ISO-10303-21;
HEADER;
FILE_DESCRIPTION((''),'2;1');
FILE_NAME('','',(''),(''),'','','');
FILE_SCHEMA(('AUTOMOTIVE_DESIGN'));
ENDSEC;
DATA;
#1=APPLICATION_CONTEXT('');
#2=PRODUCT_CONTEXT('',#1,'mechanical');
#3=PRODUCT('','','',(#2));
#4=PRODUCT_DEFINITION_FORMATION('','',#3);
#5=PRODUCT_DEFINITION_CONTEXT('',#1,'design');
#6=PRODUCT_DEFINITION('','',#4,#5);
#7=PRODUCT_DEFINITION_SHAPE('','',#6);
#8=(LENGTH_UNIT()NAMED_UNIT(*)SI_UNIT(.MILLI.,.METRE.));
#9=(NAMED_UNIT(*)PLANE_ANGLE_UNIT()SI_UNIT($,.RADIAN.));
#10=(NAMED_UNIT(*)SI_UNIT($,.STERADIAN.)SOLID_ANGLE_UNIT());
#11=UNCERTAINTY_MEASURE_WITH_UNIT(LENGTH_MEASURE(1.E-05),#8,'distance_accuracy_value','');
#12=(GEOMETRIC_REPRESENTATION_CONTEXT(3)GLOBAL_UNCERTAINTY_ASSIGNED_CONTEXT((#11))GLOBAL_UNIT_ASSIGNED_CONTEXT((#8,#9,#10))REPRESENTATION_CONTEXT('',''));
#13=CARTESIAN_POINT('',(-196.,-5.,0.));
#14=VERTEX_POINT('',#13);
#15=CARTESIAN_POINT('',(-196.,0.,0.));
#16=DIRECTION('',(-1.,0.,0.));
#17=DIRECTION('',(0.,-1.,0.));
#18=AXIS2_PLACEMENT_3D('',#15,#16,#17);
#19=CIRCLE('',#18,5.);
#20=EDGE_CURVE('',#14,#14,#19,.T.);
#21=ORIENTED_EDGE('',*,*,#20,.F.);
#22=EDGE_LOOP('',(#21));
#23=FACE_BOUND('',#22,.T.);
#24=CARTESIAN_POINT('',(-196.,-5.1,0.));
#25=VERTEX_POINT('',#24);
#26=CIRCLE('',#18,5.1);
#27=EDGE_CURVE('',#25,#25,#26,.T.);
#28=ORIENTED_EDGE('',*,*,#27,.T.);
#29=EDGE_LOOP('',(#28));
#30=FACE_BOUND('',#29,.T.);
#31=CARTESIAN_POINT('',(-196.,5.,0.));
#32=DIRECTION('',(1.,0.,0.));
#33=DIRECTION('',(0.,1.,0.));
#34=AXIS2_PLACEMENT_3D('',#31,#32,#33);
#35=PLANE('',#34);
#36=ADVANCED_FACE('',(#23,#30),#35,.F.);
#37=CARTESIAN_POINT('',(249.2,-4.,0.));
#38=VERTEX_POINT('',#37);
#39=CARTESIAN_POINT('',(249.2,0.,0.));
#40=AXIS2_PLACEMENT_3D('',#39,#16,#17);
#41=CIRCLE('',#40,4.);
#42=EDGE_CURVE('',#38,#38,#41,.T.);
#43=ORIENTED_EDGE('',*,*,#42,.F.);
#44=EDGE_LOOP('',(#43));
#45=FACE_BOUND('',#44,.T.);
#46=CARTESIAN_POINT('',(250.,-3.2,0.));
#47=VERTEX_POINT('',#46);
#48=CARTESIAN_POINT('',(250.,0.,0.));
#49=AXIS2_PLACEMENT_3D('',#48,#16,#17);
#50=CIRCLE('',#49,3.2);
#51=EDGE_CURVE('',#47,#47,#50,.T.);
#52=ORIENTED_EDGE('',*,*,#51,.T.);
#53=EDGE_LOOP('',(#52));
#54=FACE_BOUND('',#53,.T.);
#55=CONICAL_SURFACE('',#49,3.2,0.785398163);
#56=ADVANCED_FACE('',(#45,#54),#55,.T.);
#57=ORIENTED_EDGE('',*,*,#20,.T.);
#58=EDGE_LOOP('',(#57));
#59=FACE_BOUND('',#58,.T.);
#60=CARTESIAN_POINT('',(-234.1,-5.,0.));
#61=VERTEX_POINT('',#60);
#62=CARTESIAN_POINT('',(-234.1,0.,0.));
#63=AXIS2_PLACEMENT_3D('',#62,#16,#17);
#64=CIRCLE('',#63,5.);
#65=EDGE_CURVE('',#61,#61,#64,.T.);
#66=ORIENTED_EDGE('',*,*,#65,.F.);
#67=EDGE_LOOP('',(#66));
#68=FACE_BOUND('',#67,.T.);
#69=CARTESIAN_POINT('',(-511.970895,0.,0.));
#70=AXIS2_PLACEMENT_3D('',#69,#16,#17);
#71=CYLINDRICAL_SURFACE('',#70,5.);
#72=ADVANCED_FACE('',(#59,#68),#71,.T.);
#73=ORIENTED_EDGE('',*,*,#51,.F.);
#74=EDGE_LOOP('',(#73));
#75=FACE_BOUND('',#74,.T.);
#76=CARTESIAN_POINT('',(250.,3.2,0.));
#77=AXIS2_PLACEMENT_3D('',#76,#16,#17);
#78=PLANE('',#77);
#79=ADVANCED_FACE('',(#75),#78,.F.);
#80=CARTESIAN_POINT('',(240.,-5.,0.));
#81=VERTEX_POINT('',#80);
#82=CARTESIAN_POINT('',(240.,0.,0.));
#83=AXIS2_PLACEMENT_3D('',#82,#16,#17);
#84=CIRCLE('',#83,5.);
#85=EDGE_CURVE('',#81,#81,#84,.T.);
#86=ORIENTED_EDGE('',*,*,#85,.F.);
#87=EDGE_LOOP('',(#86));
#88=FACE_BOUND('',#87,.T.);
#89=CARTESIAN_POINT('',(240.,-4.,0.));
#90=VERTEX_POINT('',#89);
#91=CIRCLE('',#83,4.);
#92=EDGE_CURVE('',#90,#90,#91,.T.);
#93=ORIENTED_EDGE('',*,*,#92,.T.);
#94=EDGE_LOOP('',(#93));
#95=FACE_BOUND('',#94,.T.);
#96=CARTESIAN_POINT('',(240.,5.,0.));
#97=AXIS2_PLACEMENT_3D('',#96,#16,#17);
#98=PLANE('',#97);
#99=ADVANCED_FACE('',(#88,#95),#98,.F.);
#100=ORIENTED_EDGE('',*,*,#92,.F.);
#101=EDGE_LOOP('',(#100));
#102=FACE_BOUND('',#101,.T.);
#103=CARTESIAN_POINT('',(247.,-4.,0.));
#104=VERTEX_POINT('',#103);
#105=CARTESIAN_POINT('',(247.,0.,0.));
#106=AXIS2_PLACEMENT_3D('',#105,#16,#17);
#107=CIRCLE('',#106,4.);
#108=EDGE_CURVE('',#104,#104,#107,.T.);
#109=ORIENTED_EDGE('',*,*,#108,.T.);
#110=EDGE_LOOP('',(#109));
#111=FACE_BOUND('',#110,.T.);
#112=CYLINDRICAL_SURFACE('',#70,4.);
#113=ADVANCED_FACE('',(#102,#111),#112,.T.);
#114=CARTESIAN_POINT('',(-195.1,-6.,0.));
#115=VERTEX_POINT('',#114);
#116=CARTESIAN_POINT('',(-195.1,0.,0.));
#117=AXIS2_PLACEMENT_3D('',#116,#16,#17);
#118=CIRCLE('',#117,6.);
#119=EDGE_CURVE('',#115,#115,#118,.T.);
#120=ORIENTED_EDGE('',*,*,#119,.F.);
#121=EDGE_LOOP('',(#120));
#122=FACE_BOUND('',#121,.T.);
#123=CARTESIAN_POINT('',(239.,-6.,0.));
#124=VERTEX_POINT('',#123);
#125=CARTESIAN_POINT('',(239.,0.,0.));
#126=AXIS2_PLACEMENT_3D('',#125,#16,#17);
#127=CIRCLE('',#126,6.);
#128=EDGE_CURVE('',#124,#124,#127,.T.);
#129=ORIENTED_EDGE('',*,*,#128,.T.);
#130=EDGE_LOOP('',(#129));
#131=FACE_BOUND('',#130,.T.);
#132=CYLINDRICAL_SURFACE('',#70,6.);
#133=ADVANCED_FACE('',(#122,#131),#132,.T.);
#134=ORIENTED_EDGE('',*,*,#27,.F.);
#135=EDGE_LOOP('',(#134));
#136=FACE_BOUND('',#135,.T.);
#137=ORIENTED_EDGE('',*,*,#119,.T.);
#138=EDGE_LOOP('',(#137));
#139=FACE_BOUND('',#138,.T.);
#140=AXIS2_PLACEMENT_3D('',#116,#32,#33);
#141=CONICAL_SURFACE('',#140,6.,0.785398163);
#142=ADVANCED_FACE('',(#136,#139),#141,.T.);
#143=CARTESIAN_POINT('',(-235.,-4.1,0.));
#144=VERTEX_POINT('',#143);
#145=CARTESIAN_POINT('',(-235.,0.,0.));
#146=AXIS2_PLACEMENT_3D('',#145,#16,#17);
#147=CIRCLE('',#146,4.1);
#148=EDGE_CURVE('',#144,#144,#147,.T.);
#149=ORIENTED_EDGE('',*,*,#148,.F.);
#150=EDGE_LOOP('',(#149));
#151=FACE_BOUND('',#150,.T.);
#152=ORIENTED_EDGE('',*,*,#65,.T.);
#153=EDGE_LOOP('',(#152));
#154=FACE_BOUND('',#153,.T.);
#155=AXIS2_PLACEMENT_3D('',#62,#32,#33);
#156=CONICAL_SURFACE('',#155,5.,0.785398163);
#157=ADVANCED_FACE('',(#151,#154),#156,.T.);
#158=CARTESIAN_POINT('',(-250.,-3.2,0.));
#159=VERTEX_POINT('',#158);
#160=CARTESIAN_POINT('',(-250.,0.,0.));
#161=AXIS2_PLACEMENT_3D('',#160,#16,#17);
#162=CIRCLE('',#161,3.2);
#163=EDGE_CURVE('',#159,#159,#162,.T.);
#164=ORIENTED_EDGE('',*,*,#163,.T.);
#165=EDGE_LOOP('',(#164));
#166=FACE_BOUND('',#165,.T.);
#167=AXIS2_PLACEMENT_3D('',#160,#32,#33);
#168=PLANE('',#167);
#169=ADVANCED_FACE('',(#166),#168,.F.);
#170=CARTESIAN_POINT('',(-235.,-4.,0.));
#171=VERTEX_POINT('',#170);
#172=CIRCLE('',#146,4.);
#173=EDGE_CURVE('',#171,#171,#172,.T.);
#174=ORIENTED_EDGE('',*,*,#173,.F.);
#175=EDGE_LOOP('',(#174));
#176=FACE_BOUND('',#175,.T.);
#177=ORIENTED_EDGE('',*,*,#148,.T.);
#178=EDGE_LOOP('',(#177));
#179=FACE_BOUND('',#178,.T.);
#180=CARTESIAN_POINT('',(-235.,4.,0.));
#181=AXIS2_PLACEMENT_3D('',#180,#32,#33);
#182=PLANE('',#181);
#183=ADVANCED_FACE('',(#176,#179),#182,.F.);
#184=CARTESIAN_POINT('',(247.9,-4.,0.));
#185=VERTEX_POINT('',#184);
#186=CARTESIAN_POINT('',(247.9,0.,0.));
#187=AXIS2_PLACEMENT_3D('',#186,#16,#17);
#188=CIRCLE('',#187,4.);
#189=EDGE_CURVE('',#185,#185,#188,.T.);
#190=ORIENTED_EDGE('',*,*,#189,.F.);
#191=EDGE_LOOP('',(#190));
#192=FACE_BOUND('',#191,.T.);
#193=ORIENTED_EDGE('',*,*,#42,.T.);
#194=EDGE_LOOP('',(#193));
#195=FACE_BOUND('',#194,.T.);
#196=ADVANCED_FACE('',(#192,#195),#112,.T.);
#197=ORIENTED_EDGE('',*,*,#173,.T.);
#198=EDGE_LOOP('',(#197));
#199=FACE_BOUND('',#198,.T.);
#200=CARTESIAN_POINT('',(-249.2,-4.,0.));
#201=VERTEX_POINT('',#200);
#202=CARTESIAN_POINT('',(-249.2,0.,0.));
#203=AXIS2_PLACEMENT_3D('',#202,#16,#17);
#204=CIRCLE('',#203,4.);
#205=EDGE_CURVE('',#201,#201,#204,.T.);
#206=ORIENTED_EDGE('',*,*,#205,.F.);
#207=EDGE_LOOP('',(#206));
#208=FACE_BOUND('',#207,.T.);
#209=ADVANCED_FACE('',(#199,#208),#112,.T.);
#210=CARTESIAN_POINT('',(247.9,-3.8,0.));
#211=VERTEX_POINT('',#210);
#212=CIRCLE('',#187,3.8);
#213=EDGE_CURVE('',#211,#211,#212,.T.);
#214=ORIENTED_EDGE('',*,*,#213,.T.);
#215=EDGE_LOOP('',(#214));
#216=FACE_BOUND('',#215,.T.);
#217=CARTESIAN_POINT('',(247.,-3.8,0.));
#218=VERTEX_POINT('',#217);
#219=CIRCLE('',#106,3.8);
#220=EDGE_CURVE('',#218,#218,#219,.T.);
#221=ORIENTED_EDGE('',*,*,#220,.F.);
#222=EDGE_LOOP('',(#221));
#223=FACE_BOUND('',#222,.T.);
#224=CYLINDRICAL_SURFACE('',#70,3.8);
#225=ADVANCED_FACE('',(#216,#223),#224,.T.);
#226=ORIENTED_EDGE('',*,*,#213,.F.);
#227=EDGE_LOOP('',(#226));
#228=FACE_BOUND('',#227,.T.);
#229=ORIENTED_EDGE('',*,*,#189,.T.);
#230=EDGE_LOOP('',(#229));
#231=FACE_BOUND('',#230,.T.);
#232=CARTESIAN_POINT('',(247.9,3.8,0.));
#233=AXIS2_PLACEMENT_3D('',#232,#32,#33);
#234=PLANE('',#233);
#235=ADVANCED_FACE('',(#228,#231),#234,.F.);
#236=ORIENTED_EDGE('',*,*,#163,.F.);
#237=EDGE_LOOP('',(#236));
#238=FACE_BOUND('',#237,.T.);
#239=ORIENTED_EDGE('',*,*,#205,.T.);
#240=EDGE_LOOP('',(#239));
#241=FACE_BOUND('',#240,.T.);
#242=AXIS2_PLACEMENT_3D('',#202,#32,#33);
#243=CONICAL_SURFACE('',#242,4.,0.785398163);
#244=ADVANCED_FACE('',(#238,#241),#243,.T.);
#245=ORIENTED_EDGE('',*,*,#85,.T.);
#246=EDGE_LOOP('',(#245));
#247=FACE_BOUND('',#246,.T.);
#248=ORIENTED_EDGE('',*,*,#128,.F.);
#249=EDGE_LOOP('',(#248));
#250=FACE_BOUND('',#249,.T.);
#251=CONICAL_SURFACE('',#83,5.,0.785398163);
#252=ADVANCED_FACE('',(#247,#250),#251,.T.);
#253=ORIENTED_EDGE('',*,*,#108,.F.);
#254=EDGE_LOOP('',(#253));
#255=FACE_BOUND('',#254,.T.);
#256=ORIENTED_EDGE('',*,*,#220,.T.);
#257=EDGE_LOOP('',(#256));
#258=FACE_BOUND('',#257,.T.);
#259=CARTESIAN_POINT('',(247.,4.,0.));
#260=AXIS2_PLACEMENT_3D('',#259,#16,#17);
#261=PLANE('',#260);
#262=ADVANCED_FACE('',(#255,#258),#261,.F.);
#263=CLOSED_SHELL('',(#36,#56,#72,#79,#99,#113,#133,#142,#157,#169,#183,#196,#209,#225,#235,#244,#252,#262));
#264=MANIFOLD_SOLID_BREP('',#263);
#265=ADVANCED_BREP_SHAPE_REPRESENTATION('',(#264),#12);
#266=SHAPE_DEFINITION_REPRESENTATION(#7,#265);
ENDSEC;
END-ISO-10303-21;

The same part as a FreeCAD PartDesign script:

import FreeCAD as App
import Part
import Sketcher
Q = App.Units.Quantity


def add_polygon(sketch, points):
    """Adds a closed chain of lines whose ends are joined by coincident constraints."""
    first, n = sketch.GeometryCount, len(points)
    for a, b in zip(points, points[1:] + points[:1]):
        sketch.addGeometry(Part.LineSegment(App.Vector(*a, 0), App.Vector(*b, 0)), False)
    for i in range(n):
        sketch.addConstraint(Sketcher.Constraint("Coincident", first + i, 2, first + (i + 1) % n, 1))

doc = App.newDocument("Part")
body = doc.addObject("PartDesign::Body", "Body")

# Sketch on XY plane
sketch1 = doc.addObject("Sketcher::SketchObject", "Sketch")
body.addObject(sketch1)
sketch1.AttachmentSupport = (doc.XY_Plane, [""])
sketch1.MapMode = "FlatFace"
add_polygon(sketch1, [(-250, 3.2), (-250, 0), (250, 0), (250, 3.2), (249.2, 4), (247.9, 4), (247.9, 3.8), (247, 3.8), (247, 4), (240, 4), (240, 5), (239, 6), (-195.1, 6), (-196, 5.1), (-196, 5), (-234.1, 5), (-235, 4.1), (-235, 4), (-249.2, 4)])  # lines 0-18
sketch1.addConstraint([
    Sketcher.Constraint("Vertical", 0),
    Sketcher.Constraint("Horizontal", 1),
    Sketcher.Constraint("Vertical", 2),
    Sketcher.Constraint("Horizontal", 4),
    Sketcher.Constraint("Vertical", 5),
    Sketcher.Constraint("Horizontal", 6),
    Sketcher.Constraint("Vertical", 7),
    Sketcher.Constraint("Horizontal", 8),
    Sketcher.Constraint("Vertical", 9),
    Sketcher.Constraint("Horizontal", 11),
    Sketcher.Constraint("Vertical", 13),
    Sketcher.Constraint("Horizontal", 14),
    Sketcher.Constraint("Vertical", 16),
    Sketcher.Constraint("Horizontal", 17),
    Sketcher.Constraint("Symmetric", 0, 2, 1, 2, -1, 1),
    Sketcher.Constraint("Symmetric", 3, 2, 17, 2, -2),
    Sketcher.Constraint("Parallel", 3, 10),
    Sketcher.Constraint("Perpendicular", 10, 12),
    Sketcher.Constraint("Parallel", 12, 15),
    Sketcher.Constraint("Parallel", 15, 18),
    Sketcher.Constraint("Horizontal", 4, 2, 7, 2),
    Sketcher.Constraint("Horizontal", 9, 2, 13, 2),
    Sketcher.Constraint("Horizontal", 2, 2, 18, 2),
    Sketcher.Constraint("Equal", 13, 16),
    Sketcher.Constraint("Equal", 12, 15),
    Sketcher.Constraint("DistanceX", 1, 1, 1, 2, Q("500 mm")),
    Sketcher.Constraint("DistanceX", 8, 2, 8, 1, Q("7 mm")),
    Sketcher.Constraint("DistanceY", 9, 1, 9, 2, Q("1 mm")),
    Sketcher.Constraint("DistanceX", 4, 2, 4, 1, Q("1.3 mm")),
    Sketcher.Constraint("DistanceX", 6, 2, 6, 1, Q("0.9 mm")),
    Sketcher.Constraint("DistanceX", 11, 2, 11, 1, Q("434.1 mm")),
    Sketcher.Constraint("DistanceX", 14, 2, 14, 1, Q("38.1 mm")),
    Sketcher.Constraint("DistanceX", 17, 2, 17, 1, Q("14.2 mm")),
    Sketcher.Constraint("DistanceY", 0, 2, 0, 1, Q("3.2 mm")),
    Sketcher.Constraint("DistanceY", 5, 2, 5, 1, Q("0.2 mm")),
    Sketcher.Constraint("DistanceY", 13, 2, 13, 1, Q("0.1 mm")),
])
revolution = doc.addObject("PartDesign::Revolution", "Revolution")
body.addObject(revolution)
revolution.Profile = sketch1
revolution.ReferenceAxis = (sketch1, ["H_Axis"])
revolution.Angle = 360

doc.recompute()
